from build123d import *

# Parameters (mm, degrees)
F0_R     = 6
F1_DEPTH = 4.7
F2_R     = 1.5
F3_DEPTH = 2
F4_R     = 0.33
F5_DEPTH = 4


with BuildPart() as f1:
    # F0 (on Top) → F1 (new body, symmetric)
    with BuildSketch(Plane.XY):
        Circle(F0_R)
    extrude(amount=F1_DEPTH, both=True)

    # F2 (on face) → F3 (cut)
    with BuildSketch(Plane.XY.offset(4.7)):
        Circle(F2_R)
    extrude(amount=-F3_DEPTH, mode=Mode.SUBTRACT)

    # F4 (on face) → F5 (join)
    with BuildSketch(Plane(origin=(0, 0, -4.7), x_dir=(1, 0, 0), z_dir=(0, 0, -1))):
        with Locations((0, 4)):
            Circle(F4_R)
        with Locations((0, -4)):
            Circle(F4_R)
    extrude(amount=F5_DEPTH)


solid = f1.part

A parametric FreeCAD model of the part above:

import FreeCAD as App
import Part
import Sketcher

V = App.Vector

doc = App.newDocument("Part")
body = doc.addObject("PartDesign::Body", "Body")

# Sketch on XY plane
sketch1 = body.newObject("Sketcher::SketchObject", "Sketch")
sketch1.AttachmentSupport = (doc.getObject("XY_Plane"), [""])
sketch1.MapMode = "FlatFace"
sketch1.addGeometry(Part.Circle(V(0, 0, 0), V(0, 0, 1), 6), False)
sketch1.addConstraint(Sketcher.Constraint("Coincident", 0, 3, -1, 1))
sketch1.addConstraint(Sketcher.Constraint("Diameter", 0, 12.0))
pad1 = body.newObject("PartDesign::Pad", "Pad")
pad1.Profile = sketch1
pad1.Length = 9.4
pad1.Midplane = True

# Sketch on XY plane
sketch2 = body.newObject("Sketcher::SketchObject", "Sketch001")
sketch2.AttachmentSupport = (doc.getObject("XY_Plane"), [""])
sketch2.MapMode = "FlatFace"
sketch2.AttachmentOffset = App.Placement(V(0, 0, 4.7), App.Rotation())
sketch2.addGeometry(Part.Circle(V(0, 0, 0), V(0, 0, 1), 1.5), False)
sketch2.addConstraint(Sketcher.Constraint("Coincident", 0, 3, -1, 1))
sketch2.addConstraint(Sketcher.Constraint("Diameter", 0, 3.0))
pocket1 = body.newObject("PartDesign::Pocket", "Pocket")
pocket1.Profile = sketch2
pocket1.Length = 2

# Sketch on XY plane
sketch3 = body.newObject("Sketcher::SketchObject", "Sketch002")
sketch3.AttachmentSupport = (doc.getObject("XY_Plane"), [""])
sketch3.MapMode = "FlatFace"
sketch3.AttachmentOffset = App.Placement(V(0, 0, -4.7), App.Rotation())
sketch3.addGeometry(Part.Circle(V(0, -4, 0), V(0, 0, 1), 0.33), False)
sketch3.addGeometry(Part.Circle(V(0, 4, 0), V(0, 0, 1), 0.33), False)
sketch3.addConstraint(Sketcher.Constraint("Equal", 0, 1))
sketch3.addConstraint(Sketcher.Constraint("Symmetric", 0, 3, 1, 3, -1, 1))
sketch3.addConstraint(Sketcher.Constraint("PointOnObject", 0, 3, -2))
sketch3.addConstraint(Sketcher.Constraint("Diameter", 0, 0.66))
sketch3.addConstraint(Sketcher.Constraint("DistanceY", 0, 3, -1, 1, 4.0))
pad2 = body.newObject("PartDesign::Pad", "Pad001")
pad2.Profile = sketch3
pad2.Length = 4
pad2.Reversed = True

doc.recompute()
